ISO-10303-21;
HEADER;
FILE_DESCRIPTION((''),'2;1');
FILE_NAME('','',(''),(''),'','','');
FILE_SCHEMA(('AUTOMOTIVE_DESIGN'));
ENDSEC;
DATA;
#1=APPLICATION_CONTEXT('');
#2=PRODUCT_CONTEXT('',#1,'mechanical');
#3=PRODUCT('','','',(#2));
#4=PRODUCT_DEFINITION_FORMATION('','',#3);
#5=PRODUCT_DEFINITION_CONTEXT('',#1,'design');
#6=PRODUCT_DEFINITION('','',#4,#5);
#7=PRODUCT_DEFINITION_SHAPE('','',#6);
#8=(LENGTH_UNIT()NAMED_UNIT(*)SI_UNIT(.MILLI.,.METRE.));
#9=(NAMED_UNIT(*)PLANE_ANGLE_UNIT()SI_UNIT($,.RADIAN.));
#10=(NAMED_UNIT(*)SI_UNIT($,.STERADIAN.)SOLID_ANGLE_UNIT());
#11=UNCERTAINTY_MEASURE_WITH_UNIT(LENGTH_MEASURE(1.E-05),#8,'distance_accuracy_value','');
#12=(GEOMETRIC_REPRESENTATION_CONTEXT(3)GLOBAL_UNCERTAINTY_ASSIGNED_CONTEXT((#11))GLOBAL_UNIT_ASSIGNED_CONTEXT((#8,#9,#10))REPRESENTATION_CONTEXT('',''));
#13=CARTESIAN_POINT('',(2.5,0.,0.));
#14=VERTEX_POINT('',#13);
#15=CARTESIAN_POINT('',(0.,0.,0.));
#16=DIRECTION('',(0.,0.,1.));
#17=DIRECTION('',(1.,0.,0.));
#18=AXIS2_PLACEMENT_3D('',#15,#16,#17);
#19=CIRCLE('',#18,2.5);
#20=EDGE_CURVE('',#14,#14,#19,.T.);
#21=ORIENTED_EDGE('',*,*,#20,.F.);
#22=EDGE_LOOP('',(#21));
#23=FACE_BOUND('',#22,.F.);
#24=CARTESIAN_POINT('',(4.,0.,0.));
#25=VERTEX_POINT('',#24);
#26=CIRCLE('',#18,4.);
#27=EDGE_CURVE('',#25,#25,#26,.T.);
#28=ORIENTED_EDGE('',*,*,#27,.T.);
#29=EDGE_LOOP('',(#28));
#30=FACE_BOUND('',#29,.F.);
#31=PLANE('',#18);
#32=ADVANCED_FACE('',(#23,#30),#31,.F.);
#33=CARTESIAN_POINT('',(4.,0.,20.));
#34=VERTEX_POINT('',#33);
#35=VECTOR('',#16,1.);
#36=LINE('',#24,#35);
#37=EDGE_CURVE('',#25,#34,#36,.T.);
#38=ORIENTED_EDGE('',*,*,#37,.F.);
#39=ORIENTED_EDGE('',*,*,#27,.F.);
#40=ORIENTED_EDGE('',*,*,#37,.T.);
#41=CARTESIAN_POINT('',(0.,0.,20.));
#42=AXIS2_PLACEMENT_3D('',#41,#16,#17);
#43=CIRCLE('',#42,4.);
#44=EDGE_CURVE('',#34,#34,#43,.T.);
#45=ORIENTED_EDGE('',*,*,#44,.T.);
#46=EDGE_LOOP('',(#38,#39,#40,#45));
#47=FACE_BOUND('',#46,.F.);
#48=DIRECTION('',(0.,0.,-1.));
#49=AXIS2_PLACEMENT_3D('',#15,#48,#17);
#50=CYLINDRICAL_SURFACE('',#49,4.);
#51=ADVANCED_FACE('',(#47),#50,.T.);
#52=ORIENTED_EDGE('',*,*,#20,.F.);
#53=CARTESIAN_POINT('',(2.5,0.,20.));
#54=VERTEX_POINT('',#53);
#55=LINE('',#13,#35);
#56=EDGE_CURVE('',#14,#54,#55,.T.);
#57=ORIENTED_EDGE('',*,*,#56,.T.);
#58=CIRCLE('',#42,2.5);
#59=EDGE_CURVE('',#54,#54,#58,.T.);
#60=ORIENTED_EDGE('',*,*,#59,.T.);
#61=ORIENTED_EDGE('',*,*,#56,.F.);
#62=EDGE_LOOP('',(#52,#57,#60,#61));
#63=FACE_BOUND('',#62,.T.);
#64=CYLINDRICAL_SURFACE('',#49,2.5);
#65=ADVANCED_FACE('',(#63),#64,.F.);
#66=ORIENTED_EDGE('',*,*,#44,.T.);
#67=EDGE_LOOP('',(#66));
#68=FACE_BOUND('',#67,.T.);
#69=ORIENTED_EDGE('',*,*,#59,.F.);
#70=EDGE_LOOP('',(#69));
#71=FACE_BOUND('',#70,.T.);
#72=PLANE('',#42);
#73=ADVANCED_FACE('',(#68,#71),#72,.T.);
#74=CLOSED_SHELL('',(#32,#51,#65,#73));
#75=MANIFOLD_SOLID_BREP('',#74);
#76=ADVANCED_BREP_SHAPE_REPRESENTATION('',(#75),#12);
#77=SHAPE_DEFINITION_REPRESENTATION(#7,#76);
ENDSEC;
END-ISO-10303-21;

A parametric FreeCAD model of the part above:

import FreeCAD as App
import Part
import Sketcher
from FreeCAD import Vector
Q = App.Units.Quantity

doc = App.newDocument("Part")
params = doc.addObject("Spreadsheet::Sheet", "Params")
for row, (alias, value) in enumerate([
    ("sketch1_diameter", "8 mm"),
    ("sketch1_diameter2", "5 mm"),
    ("pad1_length", "20 mm"),
], start=1):
    params.set(f"A{row}", alias)
    params.set(f"B{row}", "=" + value)
    params.setAlias(f"B{row}", alias)

body = doc.addObject("PartDesign::Body", "Body")

# Sketch on XY plane
sketch1 = body.newObject("Sketcher::SketchObject", "Sketch")
sketch1.AttachmentSupport = (doc.getObject("XY_Plane"), [""])
sketch1.MapMode = "FlatFace"
sketch1.addGeometry([
    Part.Circle(Vector(0, 0, 0), Vector(0, 0, 1), 4),
    Part.Circle(Vector(0, 0, 0), Vector(0, 0, 1), 2.5),
], False)
sketch1.addConstraint([
    Sketcher.Constraint("Coincident", 0, 3, -1, 1),
    Sketcher.Constraint("Coincident", 1, 3, -1, 1),
    Sketcher.Constraint("Diameter", 0, Q("8 mm")),
    Sketcher.Constraint("Diameter", 1, Q("5 mm")),
])
sketch1.setExpression("Constraints[2]", "Params.sketch1_diameter")
sketch1.setExpression("Constraints[3]", "Params.sketch1_diameter2")
pad1 = body.newObject("PartDesign::Pad", "Pad")
pad1.Profile = sketch1
pad1.setExpression("Length", "Params.pad1_length")

doc.recompute()
